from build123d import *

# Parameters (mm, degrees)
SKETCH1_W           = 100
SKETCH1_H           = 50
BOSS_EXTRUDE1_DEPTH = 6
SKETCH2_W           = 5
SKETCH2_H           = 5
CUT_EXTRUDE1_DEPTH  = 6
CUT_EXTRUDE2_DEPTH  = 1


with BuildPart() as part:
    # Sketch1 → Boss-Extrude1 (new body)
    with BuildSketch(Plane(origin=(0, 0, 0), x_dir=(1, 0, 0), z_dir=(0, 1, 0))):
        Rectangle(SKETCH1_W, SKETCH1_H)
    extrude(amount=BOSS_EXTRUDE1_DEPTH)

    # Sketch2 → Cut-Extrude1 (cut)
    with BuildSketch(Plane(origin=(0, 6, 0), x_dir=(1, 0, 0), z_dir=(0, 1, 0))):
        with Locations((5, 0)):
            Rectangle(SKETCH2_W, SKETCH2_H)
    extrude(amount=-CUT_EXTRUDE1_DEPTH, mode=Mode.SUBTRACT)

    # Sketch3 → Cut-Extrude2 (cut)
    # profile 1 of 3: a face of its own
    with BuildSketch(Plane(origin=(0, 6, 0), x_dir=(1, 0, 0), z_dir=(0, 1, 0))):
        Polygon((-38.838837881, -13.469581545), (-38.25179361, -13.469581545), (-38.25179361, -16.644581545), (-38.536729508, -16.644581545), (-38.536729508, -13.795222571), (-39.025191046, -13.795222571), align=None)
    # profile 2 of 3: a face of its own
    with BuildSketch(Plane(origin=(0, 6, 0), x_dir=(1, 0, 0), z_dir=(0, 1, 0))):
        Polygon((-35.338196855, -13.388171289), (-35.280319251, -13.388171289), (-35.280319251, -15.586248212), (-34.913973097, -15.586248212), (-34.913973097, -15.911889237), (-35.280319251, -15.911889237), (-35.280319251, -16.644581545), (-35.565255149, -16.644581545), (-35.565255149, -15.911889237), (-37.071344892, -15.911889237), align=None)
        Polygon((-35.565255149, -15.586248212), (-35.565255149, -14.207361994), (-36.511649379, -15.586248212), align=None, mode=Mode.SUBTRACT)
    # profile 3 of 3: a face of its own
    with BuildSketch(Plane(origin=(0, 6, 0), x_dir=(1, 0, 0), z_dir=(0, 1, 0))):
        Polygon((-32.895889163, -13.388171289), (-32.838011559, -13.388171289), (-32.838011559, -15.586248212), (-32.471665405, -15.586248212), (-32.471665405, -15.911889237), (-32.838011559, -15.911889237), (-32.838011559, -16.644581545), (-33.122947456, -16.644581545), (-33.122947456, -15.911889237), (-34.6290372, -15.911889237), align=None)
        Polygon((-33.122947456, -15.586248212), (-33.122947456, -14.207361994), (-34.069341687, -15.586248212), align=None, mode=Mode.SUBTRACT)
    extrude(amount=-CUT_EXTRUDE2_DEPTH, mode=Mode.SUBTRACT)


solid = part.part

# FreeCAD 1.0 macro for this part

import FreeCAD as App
import Part
import Sketcher

doc = App.newDocument("Part")
body = doc.addObject("PartDesign::Body", "Body")

sketch1 = body.newObject("Sketcher::SketchObject", "Sketch")
sketch1.AttachmentSupport = (doc.getObject("XZ_Plane"), [""])
sketch1.MapMode = "FlatFace"
sketch1.addGeometry(Part.LineSegment(App.Vector(-50, -25, 0), App.Vector(-50, 25, 0)), False)
sketch1.addGeometry(Part.LineSegment(App.Vector(-50, 25, 0), App.Vector(50, 25, 0)), False)
sketch1.addGeometry(Part.LineSegment(App.Vector(50, 25, 0), App.Vector(50, -25, 0)), False)
sketch1.addGeometry(Part.LineSegment(App.Vector(50, -25, 0), App.Vector(-50, -25, 0)), False)
sketch1.addConstraint(Sketcher.Constraint("Coincident", 0, 2, 1, 1))
sketch1.addConstraint(Sketcher.Constraint("Coincident", 1, 2, 2, 1))
sketch1.addConstraint(Sketcher.Constraint("Coincident", 2, 2, 3, 1))
sketch1.addConstraint(Sketcher.Constraint("Coincident", 3, 2, 0, 1))
sketch1.addConstraint(Sketcher.Constraint("Vertical", 0))
sketch1.addConstraint(Sketcher.Constraint("Horizontal", 1))
sketch1.addConstraint(Sketcher.Constraint("Vertical", 2))
sketch1.addConstraint(Sketcher.Constraint("Horizontal", 3))
sketch1.addConstraint(Sketcher.Constraint("Symmetric", 0, 2, 2, 2, -1, 1))
sketch1.addConstraint(Sketcher.Constraint("DistanceX", 1, 1, 1, 2, 100.0))
sketch1.addConstraint(Sketcher.Constraint("DistanceY", 0, 1, 0, 2, 50.0))
pad1 = body.newObject("PartDesign::Pad", "Pad")
pad1.Profile = sketch1
pad1.Length = 6
pad1.Reversed = True

sketch2 = body.newObject("Sketcher::SketchObject", "Sketch001")
sketch2.AttachmentSupport = (doc.getObject("XZ_Plane"), [""])
sketch2.MapMode = "FlatFace"
sketch2.AttachmentOffset = App.Placement(App.Vector(0, 0, -6), App.Rotation())
sketch2.addGeometry(Part.LineSegment(App.Vector(2, -2, 0), App.Vector(2, 2, 0)), False)
sketch2.addGeometry(Part.LineSegment(App.Vector(2, 2, 0), App.Vector(8, 2, 0)), False)
sketch2.addGeometry(Part.LineSegment(App.Vector(8, 2, 0), App.Vector(8, -2, 0)), False)
sketch2.addGeometry(Part.LineSegment(App.Vector(8, -2, 0), App.Vector(2, -2, 0)), False)
sketch2.addConstraint(Sketcher.Constraint("Coincident", 0, 2, 1, 1))
sketch2.addConstraint(Sketcher.Constraint("Coincident", 1, 2, 2, 1))
sketch2.addConstraint(Sketcher.Constraint("Coincident", 2, 2, 3, 1))
sketch2.addConstraint(Sketcher.Constraint("Coincident", 3, 2, 0, 1))
sketch2.addConstraint(Sketcher.Constraint("Vertical", 0))
sketch2.addConstraint(Sketcher.Constraint("Horizontal", 1))
sketch2.addConstraint(Sketcher.Constraint("Vertical", 2))
sketch2.addConstraint(Sketcher.Constraint("Horizontal", 3))
sketch2.addConstraint(Sketcher.Constraint("Equal", 3, 0))
sketch2.addConstraint(Sketcher.Constraint("DistanceX", 1, 1, 1, 2, 5.0))
sketch2.addConstraint(Sketcher.Constraint("DistanceX", -1, 1, 0, 2, 2.5))
sketch2.addConstraint(Sketcher.Constraint("DistanceY", -1, 1, 0, 2, 2.5))
pocket1 = body.newObject("PartDesign::Pocket", "Pocket")
pocket1.Profile = sketch2
pocket1.Length = 6
pocket1.Reversed = True

sketch3 = body.newObject("Sketcher::SketchObject", "Sketch002")
sketch3.AttachmentSupport = (doc.getObject("XZ_Plane"), [""])
sketch3.MapMode = "FlatFace"
sketch3.AttachmentOffset = App.Placement(App.Vector(0, 0, -6), App.Rotation())
sketch3.addGeometry(Part.LineSegment(App.Vector(-38.25, 13.47, 0), App.Vector(-38.84, 13.47, 0)), False)
sketch3.addGeometry(Part.LineSegment(App.Vector(-38.84, 13.47, 0), App.Vector(-39.03, 13.8, 0)), False)
sketch3.addGeometry(Part.LineSegment(App.Vector(-39.03, 13.8, 0), App.Vector(-38.54, 13.8, 0)), False)
sketch3.addGeometry(Part.LineSegment(App.Vector(-38.54, 13.8, 0), App.Vector(-38.54, 16.64, 0)), False)
sketch3.addGeometry(Part.LineSegment(App.Vector(-38.54, 16.64, 0), App.Vector(-38.25, 16.64, 0)), False)
sketch3.addGeometry(Part.LineSegment(App.Vector(-38.25, 16.64, 0), App.Vector(-38.25, 13.47, 0)), False)
sketch3.addGeometry(Part.LineSegment(App.Vector(-35.28, 13.39, 0), App.Vector(-35.34, 13.39, 0)), False)
sketch3.addGeometry(Part.LineSegment(App.Vector(-35.34, 13.39, 0), App.Vector(-37.07, 15.91, 0)), False)
sketch3.addGeometry(Part.LineSegment(App.Vector(-37.07, 15.91, 0), App.Vector(-35.57, 15.91, 0)), False)
sketch3.addGeometry(Part.LineSegment(App.Vector(-35.57, 15.91, 0), App.Vector(-35.57, 16.64, 0)), False)
sketch3.addGeometry(Part.LineSegment(App.Vector(-35.57, 16.64, 0), App.Vector(-35.28, 16.64, 0)), False)
sketch3.addGeometry(Part.LineSegment(App.Vector(-35.28, 16.64, 0), App.Vector(-35.28, 15.91, 0)), False)
sketch3.addGeometry(Part.LineSegment(App.Vector(-35.28, 15.91, 0), App.Vector(-34.91, 15.91, 0)), False)
sketch3.addGeometry(Part.LineSegment(App.Vector(-34.91, 15.91, 0), App.Vector(-34.91, 15.59, 0)), False)
sketch3.addGeometry(Part.LineSegment(App.Vector(-34.91, 15.59, 0), App.Vector(-35.28, 15.59, 0)), False)
sketch3.addGeometry(Part.LineSegment(App.Vector(-35.28, 15.59, 0), App.Vector(-35.28, 13.39, 0)), False)
sketch3.addGeometry(Part.LineSegment(App.Vector(-35.57, 15.59, 0), App.Vector(-36.51, 15.59, 0)), False)
sketch3.addGeometry(Part.LineSegment(App.Vector(-36.51, 15.59, 0), App.Vector(-35.57, 14.21, 0)), False)
sketch3.addGeometry(Part.LineSegment(App.Vector(-35.57, 14.21, 0), App.Vector(-35.57, 15.59, 0)), False)
sketch3.addGeometry(Part.LineSegment(App.Vector(-32.84, 13.39, 0), App.Vector(-32.9, 13.39, 0)), False)
sketch3.addGeometry(Part.LineSegment(App.Vector(-32.9, 13.39, 0), App.Vector(-34.63, 15.91, 0)), False)
sketch3.addGeometry(Part.LineSegment(App.Vector(-34.63, 15.91, 0), App.Vector(-33.12, 15.91, 0)), False)
sketch3.addGeometry(Part.LineSegment(App.Vector(-33.12, 15.91, 0), App.Vector(-33.12, 16.64, 0)), False)
sketch3.addGeometry(Part.LineSegment(App.Vector(-33.12, 16.64, 0), App.Vector(-32.84, 16.64, 0)), False)
sketch3.addGeometry(Part.LineSegment(App.Vector(-32.84, 16.64, 0), App.Vector(-32.84, 15.91, 0)), False)
sketch3.addGeometry(Part.LineSegment(App.Vector(-32.84, 15.91, 0), App.Vector(-32.47, 15.91, 0)), False)
sketch3.addGeometry(Part.LineSegment(App.Vector(-32.47, 15.91, 0), App.Vector(-32.47, 15.59, 0)), False)
sketch3.addGeometry(Part.LineSegment(App.Vector(-32.47, 15.59, 0), App.Vector(-32.84, 15.59, 0)), False)
sketch3.addGeometry(Part.LineSegment(App.Vector(-32.84, 15.59, 0), App.Vector(-32.84, 13.39, 0)), False)
sketch3.addGeometry(Part.LineSegment(App.Vector(-33.12, 15.59, 0), App.Vector(-34.07, 15.59, 0)), False)
sketch3.addGeometry(Part.LineSegment(App.Vector(-34.07, 15.59, 0), App.Vector(-33.12, 14.21, 0)), False)
sketch3.addGeometry(Part.LineSegment(App.Vector(-33.12, 14.21, 0), App.Vector(-33.12, 15.59, 0)), False)
sketch3.addConstraint(Sketcher.Constraint("Coincident", 0, 2, 1, 1))
sketch3.addConstraint(Sketcher.Constraint("Coincident", 1, 2, 2, 1))
sketch3.addConstraint(Sketcher.Constraint("Coincident", 2, 2, 3, 1))
sketch3.addConstraint(Sketcher.Constraint("Coincident", 3, 2, 4, 1))
sketch3.addConstraint(Sketcher.Constraint("Coincident", 4, 2, 5, 1))
sketch3.addConstraint(Sketcher.Constraint("Coincident", 5, 2, 0, 1))
sketch3.addConstraint(Sketcher.Constraint("Coincident", 6, 2, 7, 1))
sketch3.addConstraint(Sketcher.Constraint("Coincident", 7, 2, 8, 1))
sketch3.addConstraint(Sketcher.Constraint("Coincident", 8, 2, 9, 1))
sketch3.addConstraint(Sketcher.Constraint("Coincident", 9, 2, 10, 1))
sketch3.addConstraint(Sketcher.Constraint("Coincident", 10, 2, 11, 1))
sketch3.addConstraint(Sketcher.Constraint("Coincident", 11, 2, 12, 1))
sketch3.addConstraint(Sketcher.Constraint("Coincident", 12, 2, 13, 1))
sketch3.addConstraint(Sketcher.Constraint("Coincident", 13, 2, 14, 1))
sketch3.addConstraint(Sketcher.Constraint("Coincident", 14, 2, 15, 1))
sketch3.addConstraint(Sketcher.Constraint("Coincident", 15, 2, 6, 1))
sketch3.addConstraint(Sketcher.Constraint("Coincident", 16, 2, 17, 1))
sketch3.addConstraint(Sketcher.Constraint("Coincident", 17, 2, 18, 1))
sketch3.addConstraint(Sketcher.Constraint("Coincident", 18, 2, 16, 1))
sketch3.addConstraint(Sketcher.Constraint("Coincident", 19, 2, 20, 1))
sketch3.addConstraint(Sketcher.Constraint("Coincident", 20, 2, 21, 1))
sketch3.addConstraint(Sketcher.Constraint("Coincident", 21, 2, 22, 1))
sketch3.addConstraint(Sketcher.Constraint("Coincident", 22, 2, 23, 1))
sketch3.addConstraint(Sketcher.Constraint("Coincident", 23, 2, 24, 1))
sketch3.addConstraint(Sketcher.Constraint("Coincident", 24, 2, 25, 1))
sketch3.addConstraint(Sketcher.Constraint("Coincident", 25, 2, 26, 1))
sketch3.addConstraint(Sketcher.Constraint("Coincident", 26, 2, 27, 1))
sketch3.addConstraint(Sketcher.Constraint("Coincident", 27, 2, 28, 1))
sketch3.addConstraint(Sketcher.Constraint("Coincident", 28, 2, 19, 1))
sketch3.addConstraint(Sketcher.Constraint("Coincident", 29, 2, 30, 1))
sketch3.addConstraint(Sketcher.Constraint("Coincident", 30, 2, 31, 1))
sketch3.addConstraint(Sketcher.Constraint("Coincident", 31, 2, 29, 1))
sketch3.addConstraint(Sketcher.Constraint("Horizontal", 0))
sketch3.addConstraint(Sketcher.Constraint("Horizontal", 2))
sketch3.addConstraint(Sketcher.Constraint("Vertical", 3))
sketch3.addConstraint(Sketcher.Constraint("Horizontal", 4))
sketch3.addConstraint(Sketcher.Constraint("Vertical", 5))
sketch3.addConstraint(Sketcher.Constraint("Horizontal", 6))
sketch3.addConstraint(Sketcher.Constraint("Horizontal", 8))
sketch3.addConstraint(Sketcher.Constraint("Vertical", 9))
sketch3.addConstraint(Sketcher.Constraint("Horizontal", 10))
sketch3.addConstraint(Sketcher.Constraint("Vertical", 11))
sketch3.addConstraint(Sketcher.Constraint("Horizontal", 12))
sketch3.addConstraint(Sketcher.Constraint("Vertical", 13))
sketch3.addConstraint(Sketcher.Constraint("Horizontal", 14))
sketch3.addConstraint(Sketcher.Constraint("Vertical", 15))
sketch3.addConstraint(Sketcher.Constraint("Horizontal", 16))
sketch3.addConstraint(Sketcher.Constraint("Vertical", 18))
sketch3.addConstraint(Sketcher.Constraint("Horizontal", 19))
sketch3.addConstraint(Sketcher.Constraint("Horizontal", 21))
sketch3.addConstraint(Sketcher.Constraint("Vertical", 22))
sketch3.addConstraint(Sketcher.Constraint("Horizontal", 23))
sketch3.addConstraint(Sketcher.Constraint("Vertical", 24))
sketch3.addConstraint(Sketcher.Constraint("Horizontal", 25))
sketch3.addConstraint(Sketcher.Constraint("Vertical", 26))
sketch3.addConstraint(Sketcher.Constraint("Horizontal", 27))
sketch3.addConstraint(Sketcher.Constraint("Vertical", 28))
sketch3.addConstraint(Sketcher.Constraint("Horizontal", 29))
sketch3.addConstraint(Sketcher.Constraint("Vertical", 31))
sketch3.addConstraint(Sketcher.Constraint("Parallel", 7, 20))
sketch3.addConstraint(Sketcher.Constraint("Parallel", 17, 30))
sketch3.addConstraint(Sketcher.Constraint("Horizontal", 4, 2, 9, 2))
sketch3.addConstraint(Sketcher.Constraint("Horizontal", 8, 2, 11, 2))
sketch3.addConstraint(Sketcher.Constraint("Horizontal", 14, 2, 16, 2))
sketch3.addConstraint(Sketcher.Constraint("Horizontal", 15, 2, 19, 2))
sketch3.addConstraint(Sketcher.Constraint("Horizontal", 12, 2, 20, 2))
sketch3.addConstraint(Sketcher.Constraint("Horizontal", 10, 2, 22, 2))
sketch3.addConstraint(Sketcher.Constraint("Horizontal", 21, 2, 24, 2))
sketch3.addConstraint(Sketcher.Constraint("Horizontal", 18, 2, 26, 2))
sketch3.addConstraint(Sketcher.Constraint("Horizontal", 27, 2, 29, 2))
sketch3.addConstraint(Sketcher.Constraint("Horizontal", 17, 2, 30, 2))
sketch3.addConstraint(Sketcher.Constraint("Vertical", 11, 2, 14, 2))
sketch3.addConstraint(Sketcher.Constraint("Vertical", 9, 2, 17, 2))
sketch3.addConstraint(Sketcher.Constraint("Vertical", 24, 2, 27, 2))
sketch3.addConstraint(Sketcher.Constraint("Vertical", 22, 2, 30, 2))
sketch3.addConstraint(Sketcher.Constraint("Equal", 4, 10))
sketch3.addConstraint(Sketcher.Constraint("Equal", 6, 19))
sketch3.addConstraint(Sketcher.Constraint("Equal", 8, 21))
sketch3.addConstraint(Sketcher.Constraint("Equal", 14, 25))
sketch3.addConstraint(Sketcher.Constraint("DistanceY", 5, 2, 5, 1, 3.175))
sketch3.addConstraint(Sketcher.Constraint("DistanceX", 2, 1, 2, 2, 0.488462))
sketch3.addConstraint(Sketcher.Constraint("DistanceX", 8, 1, 8, 2, 1.50609))
sketch3.addConstraint(Sketcher.Constraint("DistanceY", 3, 1, 3, 2, 2.849359))
sketch3.addConstraint(Sketcher.Constraint("DistanceY", 13, 2, 13, 1, 0.325641))
sketch3.addConstraint(Sketcher.Constraint("Distance", 7, 3.061528))
sketch3.addConstraint(Sketcher.Constraint("Distance", 17, 1.67242))
sketch3.addConstraint(Sketcher.Constraint("DistanceX", 0, 2, 0, 1, 0.587044))
sketch3.addConstraint(Sketcher.Constraint("DistanceX", 4, 1, 4, 2, 0.284936))
sketch3.addConstraint(Sketcher.Constraint("DistanceX", 6, 2, 6, 1, 0.057878))
sketch3.addConstraint(Sketcher.Constraint("DistanceX", 12, 1, 12, 2, 0.366346))
sketch3.addConstraint(Sketcher.Constraint("DistanceX", 16, 2, 16, 1, 0.946394))
sketch3.addConstraint(Sketcher.Constraint("DistanceY", 9, 1, 9, 2, 0.732692))
sketch3.addConstraint(Sketcher.Constraint("DistanceY", -1, 1, 0, 2, 13.469582))
sketch3.addConstraint(Sketcher.Constraint("DistanceX", 1, 2, -1, 1, 39.025191))
sketch3.addConstraint(Sketcher.Constraint("DistanceX", 10, 2, -1, 1, 35.280319))
sketch3.addConstraint(Sketcher.Constraint("DistanceX", 19, 2, -1, 1, 32.895889))
pocket2 = body.newObject("PartDesign::Pocket", "Pocket001")
pocket2.Profile = sketch3
pocket2.Length = 1
pocket2.Reversed = True

doc.recompute()
